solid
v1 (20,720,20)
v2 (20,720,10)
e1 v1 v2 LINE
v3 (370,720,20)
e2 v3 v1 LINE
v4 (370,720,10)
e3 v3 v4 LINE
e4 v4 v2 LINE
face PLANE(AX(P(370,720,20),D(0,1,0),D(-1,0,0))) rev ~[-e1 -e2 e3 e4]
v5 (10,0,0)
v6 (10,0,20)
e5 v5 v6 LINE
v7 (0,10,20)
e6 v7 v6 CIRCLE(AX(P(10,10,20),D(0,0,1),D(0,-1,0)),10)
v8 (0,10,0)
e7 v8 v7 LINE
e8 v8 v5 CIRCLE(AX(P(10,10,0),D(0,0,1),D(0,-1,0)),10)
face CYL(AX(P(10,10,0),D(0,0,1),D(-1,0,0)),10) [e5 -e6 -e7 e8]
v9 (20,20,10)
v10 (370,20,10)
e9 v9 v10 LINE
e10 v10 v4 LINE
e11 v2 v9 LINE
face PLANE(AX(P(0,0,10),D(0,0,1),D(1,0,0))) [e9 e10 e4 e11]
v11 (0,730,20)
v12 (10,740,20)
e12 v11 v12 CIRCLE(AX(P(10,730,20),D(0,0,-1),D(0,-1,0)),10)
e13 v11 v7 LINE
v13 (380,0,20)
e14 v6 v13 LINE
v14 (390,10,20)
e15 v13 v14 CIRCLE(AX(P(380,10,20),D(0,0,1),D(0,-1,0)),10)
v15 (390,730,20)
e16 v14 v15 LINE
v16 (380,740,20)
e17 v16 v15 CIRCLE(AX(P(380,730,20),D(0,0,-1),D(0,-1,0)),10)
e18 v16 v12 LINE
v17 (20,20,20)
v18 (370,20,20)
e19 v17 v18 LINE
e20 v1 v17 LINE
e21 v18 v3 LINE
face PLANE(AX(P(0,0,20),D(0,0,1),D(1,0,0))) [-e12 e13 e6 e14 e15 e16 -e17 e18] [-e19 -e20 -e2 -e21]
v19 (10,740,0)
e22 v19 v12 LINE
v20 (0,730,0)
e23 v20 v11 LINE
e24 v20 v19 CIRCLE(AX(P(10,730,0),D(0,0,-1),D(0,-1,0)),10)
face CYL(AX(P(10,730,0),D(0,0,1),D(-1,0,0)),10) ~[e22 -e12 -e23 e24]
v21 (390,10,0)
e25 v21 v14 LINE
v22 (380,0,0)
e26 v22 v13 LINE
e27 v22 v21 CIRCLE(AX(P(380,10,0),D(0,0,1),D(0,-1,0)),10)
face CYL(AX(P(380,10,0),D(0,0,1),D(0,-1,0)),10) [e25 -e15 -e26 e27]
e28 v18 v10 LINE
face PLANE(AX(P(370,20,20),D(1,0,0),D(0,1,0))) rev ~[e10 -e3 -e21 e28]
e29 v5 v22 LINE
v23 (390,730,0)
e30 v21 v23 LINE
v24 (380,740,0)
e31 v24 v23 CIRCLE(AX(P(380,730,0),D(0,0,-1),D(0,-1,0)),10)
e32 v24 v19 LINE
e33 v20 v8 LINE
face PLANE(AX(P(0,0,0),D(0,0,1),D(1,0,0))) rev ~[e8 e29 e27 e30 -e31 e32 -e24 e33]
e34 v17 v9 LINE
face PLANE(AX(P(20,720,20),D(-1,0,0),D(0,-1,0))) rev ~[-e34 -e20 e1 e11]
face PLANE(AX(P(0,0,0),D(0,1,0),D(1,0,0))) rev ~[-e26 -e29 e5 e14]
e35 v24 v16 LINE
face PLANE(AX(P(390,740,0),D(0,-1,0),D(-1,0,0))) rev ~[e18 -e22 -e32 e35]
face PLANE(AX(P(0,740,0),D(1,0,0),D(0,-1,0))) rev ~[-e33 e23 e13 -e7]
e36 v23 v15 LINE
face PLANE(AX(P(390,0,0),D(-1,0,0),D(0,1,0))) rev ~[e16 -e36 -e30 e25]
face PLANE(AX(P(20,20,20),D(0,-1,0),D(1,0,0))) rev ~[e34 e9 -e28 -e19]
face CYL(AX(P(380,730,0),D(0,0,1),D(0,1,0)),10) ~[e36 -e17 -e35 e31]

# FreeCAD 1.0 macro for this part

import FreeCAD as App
import Part
import Sketcher
from FreeCAD import Vector
Q = App.Units.Quantity


def edges_at(feature, points):
    """Names of the edges that pass closest to the given points."""
    edges = feature.Shape.Edges
    near = lambda p: min(range(len(edges)), key=lambda i: edges[i].distToShape(Part.Vertex(*p))[0])
    return sorted({f"Edge{near(p) + 1}" for p in points})

doc = App.newDocument("Part")
body = doc.addObject("PartDesign::Body", "Body")

# Sketch on XY plane
sketch1 = body.newObject("Sketcher::SketchObject", "Sketch")
sketch1.AttachmentSupport = (doc.getObject("XY_Plane"), [""])
sketch1.MapMode = "FlatFace"
sketch1.addGeometry([
    Part.LineSegment(Vector(0, 740, 0), Vector(0, 0, 0)),
    Part.LineSegment(Vector(0, 0, 0), Vector(390, 0, 0)),
    Part.LineSegment(Vector(390, 0, 0), Vector(390, 740, 0)),
    Part.LineSegment(Vector(390, 740, 0), Vector(0, 740, 0)),
], False)
sketch1.addConstraint([
    Sketcher.Constraint("Coincident", 0, 2, 1, 1),
    Sketcher.Constraint("Coincident", 1, 2, 2, 1),
    Sketcher.Constraint("Coincident", 2, 2, 3, 1),
    Sketcher.Constraint("Coincident", 3, 2, 0, 1),
    Sketcher.Constraint("Vertical", 0),
    Sketcher.Constraint("Horizontal", 1),
    Sketcher.Constraint("Vertical", 2),
    Sketcher.Constraint("Horizontal", 3),
    Sketcher.Constraint("Coincident", 0, 2, -1, 1),
    Sketcher.Constraint("DistanceX", 1, 1, 1, 2, Q("390 mm")),
    Sketcher.Constraint("DistanceY", 0, 2, 0, 1, Q("740 mm")),
])
pad1 = body.newObject("PartDesign::Pad", "Pad")
pad1.Profile = sketch1
pad1.Length = 20

# Sketch on XY plane
sketch2 = body.newObject("Sketcher::SketchObject", "Sketch001")
sketch2.AttachmentSupport = (doc.getObject("XY_Plane"), [""])
sketch2.MapMode = "FlatFace"
sketch2.AttachmentOffset = App.Placement(Vector(0, 0, 20), App.Rotation())
sketch2.addGeometry([
    Part.LineSegment(Vector(20, 720, 0), Vector(20, 20, 0)),
    Part.LineSegment(Vector(20, 20, 0), Vector(370, 20, 0)),
    Part.LineSegment(Vector(370, 20, 0), Vector(370, 720, 0)),
    Part.LineSegment(Vector(370, 720, 0), Vector(20, 720, 0)),
], False)
sketch2.addConstraint([
    Sketcher.Constraint("Coincident", 0, 2, 1, 1),
    Sketcher.Constraint("Coincident", 1, 2, 2, 1),
    Sketcher.Constraint("Coincident", 2, 2, 3, 1),
    Sketcher.Constraint("Coincident", 3, 2, 0, 1),
    Sketcher.Constraint("Vertical", 0),
    Sketcher.Constraint("Horizontal", 1),
    Sketcher.Constraint("Vertical", 2),
    Sketcher.Constraint("Horizontal", 3),
    Sketcher.Constraint("DistanceX", 1, 1, 1, 2, Q("350 mm")),
    Sketcher.Constraint("DistanceY", 0, 2, 0, 1, Q("700 mm")),
    Sketcher.Constraint("DistanceX", -1, 1, 0, 2, Q("20 mm")),
    Sketcher.Constraint("DistanceY", -1, 1, 0, 2, Q("20 mm")),
])
pocket1 = body.newObject("PartDesign::Pocket", "Pocket")
pocket1.Profile = sketch2
pocket1.Length = 10
doc.recompute()

fillet = body.newObject("PartDesign::Fillet", "Fillet")
fillet.Base = (pocket1, edges_at(pocket1, [
    (390, 740, 10),
    (390, 0, 10),
    (0, 740, 10),
    (0, 0, 10),
]))
fillet.Radius = 10

doc.recompute()
